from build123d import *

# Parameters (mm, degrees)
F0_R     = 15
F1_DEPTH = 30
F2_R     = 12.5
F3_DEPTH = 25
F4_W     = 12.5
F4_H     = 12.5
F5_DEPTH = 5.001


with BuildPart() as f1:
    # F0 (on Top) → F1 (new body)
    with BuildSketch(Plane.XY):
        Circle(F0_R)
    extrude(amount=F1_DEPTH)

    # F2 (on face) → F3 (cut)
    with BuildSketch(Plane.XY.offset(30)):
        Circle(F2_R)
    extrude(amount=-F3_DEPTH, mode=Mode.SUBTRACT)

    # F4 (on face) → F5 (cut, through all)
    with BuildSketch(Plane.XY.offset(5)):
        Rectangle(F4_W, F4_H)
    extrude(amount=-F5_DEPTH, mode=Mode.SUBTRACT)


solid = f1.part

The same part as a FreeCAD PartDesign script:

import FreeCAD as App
import Part
import Sketcher
Q = App.Units.Quantity


def add_polygon(sketch, points):
    """Adds a closed chain of lines whose ends are joined by coincident constraints."""
    first, n = sketch.GeometryCount, len(points)
    for a, b in zip(points, points[1:] + points[:1]):
        sketch.addGeometry(Part.LineSegment(App.Vector(*a, 0), App.Vector(*b, 0)), False)
    for i in range(n):
        sketch.addConstraint(Sketcher.Constraint("Coincident", first + i, 2, first + (i + 1) % n, 1))

doc = App.newDocument("Part")
body = doc.addObject("PartDesign::Body", "Body")

sketch1 = body.newObject("Sketcher::SketchObject", "Sketch")
sketch1.AttachmentSupport = (doc.getObject("XY_Plane"), [""])
sketch1.MapMode = "FlatFace"
sketch1.addGeometry(Part.Circle(App.Vector(0, 0, 0), App.Vector(0, 0, 1), 15), False)
sketch1.addConstraint(Sketcher.Constraint("Coincident", 0, 3, -1, 1))
sketch1.addConstraint(Sketcher.Constraint("Diameter", 0, Q("30 mm")))
pad1 = body.newObject("PartDesign::Pad", "Pad")
pad1.Profile = sketch1
pad1.Length = 30

sketch2 = body.newObject("Sketcher::SketchObject", "Sketch001")
sketch2.AttachmentSupport = (doc.getObject("XY_Plane"), [""])
sketch2.MapMode = "FlatFace"
sketch2.AttachmentOffset = App.Placement(App.Vector(0, 0, 30), App.Rotation())
sketch2.addGeometry(Part.Circle(App.Vector(0, 0, 0), App.Vector(0, 0, 1), 12), False)
sketch2.addConstraint(Sketcher.Constraint("Coincident", 0, 3, -1, 1))
sketch2.addConstraint(Sketcher.Constraint("Diameter", 0, Q("25 mm")))
pocket1 = body.newObject("PartDesign::Pocket", "Pocket")
pocket1.Profile = sketch2
pocket1.Length = 25

sketch3 = body.newObject("Sketcher::SketchObject", "Sketch002")
sketch3.AttachmentSupport = (doc.getObject("XY_Plane"), [""])
sketch3.MapMode = "FlatFace"
sketch3.AttachmentOffset = App.Placement(App.Vector(0, 0, 5), App.Rotation())
add_polygon(sketch3, [(-6, 6), (-6, -6), (6, -6), (6, 6)])
sketch3.addConstraint(Sketcher.Constraint("Vertical", 0))
sketch3.addConstraint(Sketcher.Constraint("Horizontal", 1))
sketch3.addConstraint(Sketcher.Constraint("Vertical", 2))
sketch3.addConstraint(Sketcher.Constraint("Horizontal", 3))
sketch3.addConstraint(Sketcher.Constraint("Symmetric", 0, 2, 2, 2, -1, 1))
sketch3.addConstraint(Sketcher.Constraint("Equal", 3, 0))
sketch3.addConstraint(Sketcher.Constraint("DistanceX", 1, 1, 1, 2, Q("12.5 mm")))
pocket2 = body.newObject("PartDesign::Pocket", "Pocket001")
pocket2.Profile = sketch3
pocket2.Type = "ThroughAll"

doc.recompute()
